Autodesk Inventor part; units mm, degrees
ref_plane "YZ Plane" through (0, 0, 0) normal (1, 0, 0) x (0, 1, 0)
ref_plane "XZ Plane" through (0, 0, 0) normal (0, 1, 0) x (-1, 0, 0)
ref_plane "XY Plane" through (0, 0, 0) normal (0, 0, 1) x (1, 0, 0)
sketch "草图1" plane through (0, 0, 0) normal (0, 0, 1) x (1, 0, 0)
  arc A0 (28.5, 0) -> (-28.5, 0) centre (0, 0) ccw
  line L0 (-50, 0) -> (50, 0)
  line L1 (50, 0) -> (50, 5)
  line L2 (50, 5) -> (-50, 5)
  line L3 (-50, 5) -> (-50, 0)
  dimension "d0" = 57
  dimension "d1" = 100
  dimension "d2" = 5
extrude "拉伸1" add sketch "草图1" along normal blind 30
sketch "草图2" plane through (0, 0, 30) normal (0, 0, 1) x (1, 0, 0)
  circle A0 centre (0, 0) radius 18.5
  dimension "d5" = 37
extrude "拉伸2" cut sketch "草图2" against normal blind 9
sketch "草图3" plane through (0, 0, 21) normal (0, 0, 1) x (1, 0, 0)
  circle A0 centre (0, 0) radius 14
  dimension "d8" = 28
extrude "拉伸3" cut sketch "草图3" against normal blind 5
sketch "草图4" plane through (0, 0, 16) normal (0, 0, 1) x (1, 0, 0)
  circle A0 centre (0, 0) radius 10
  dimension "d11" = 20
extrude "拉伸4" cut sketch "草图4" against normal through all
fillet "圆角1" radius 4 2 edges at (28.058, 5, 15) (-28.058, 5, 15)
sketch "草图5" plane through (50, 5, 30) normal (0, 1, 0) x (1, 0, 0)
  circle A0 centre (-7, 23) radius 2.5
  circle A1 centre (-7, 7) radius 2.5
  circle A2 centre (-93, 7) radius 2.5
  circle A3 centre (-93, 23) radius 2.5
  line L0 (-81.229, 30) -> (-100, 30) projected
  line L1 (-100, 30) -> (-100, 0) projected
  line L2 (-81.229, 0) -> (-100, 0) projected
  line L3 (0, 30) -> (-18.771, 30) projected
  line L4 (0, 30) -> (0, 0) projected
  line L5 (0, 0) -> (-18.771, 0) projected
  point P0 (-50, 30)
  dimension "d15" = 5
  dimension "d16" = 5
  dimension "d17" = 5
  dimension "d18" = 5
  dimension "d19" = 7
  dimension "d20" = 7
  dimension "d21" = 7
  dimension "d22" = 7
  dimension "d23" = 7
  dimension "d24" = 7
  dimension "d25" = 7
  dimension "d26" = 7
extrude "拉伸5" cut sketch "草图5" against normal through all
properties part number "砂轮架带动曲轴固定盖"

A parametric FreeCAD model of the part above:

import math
import FreeCAD as App
import Part
import Sketcher
from FreeCAD import Vector
Q = App.Units.Quantity


def edges_at(feature, points):
    """Names of the edges that pass closest to the given points."""
    edges = feature.Shape.Edges
    near = lambda p: min(range(len(edges)), key=lambda i: edges[i].distToShape(Part.Vertex(*p))[0])
    return sorted({f"Edge{near(p) + 1}" for p in points})

doc = App.newDocument("Part")
body = doc.addObject("PartDesign::Body", "Body")

# Sketch on XY plane
sketch1 = doc.addObject("Sketcher::SketchObject", "Sketch")
body.addObject(sketch1)
sketch1.AttachmentSupport = (doc.XY_Plane, [""])
sketch1.MapMode = "FlatFace"
sketch1.addGeometry(Part.LineSegment(Vector(50, 0, 0), Vector(50, 5, 0)), False)
sketch1.addGeometry(Part.LineSegment(Vector(50, 5, 0), Vector(28, 5, 0)), False)
sketch1.addGeometry(Part.ArcOfCircle(Part.Circle(Vector(0, 0, 0), Vector(0, 0, 1), 28), math.radians(10), math.radians(170)), False)
sketch1.addGeometry(Part.LineSegment(Vector(-28, 5, 0), Vector(-50, 5, 0)), False)
sketch1.addGeometry(Part.LineSegment(Vector(-50, 5, 0), Vector(-50, 0, 0)), False)
sketch1.addGeometry(Part.LineSegment(Vector(-50, 0, 0), Vector(50, 0, 0)), False)
sketch1.addConstraint(Sketcher.Constraint("Coincident", 0, 2, 1, 1))
sketch1.addConstraint(Sketcher.Constraint("Coincident", 1, 2, 2, 1))
sketch1.addConstraint(Sketcher.Constraint("Coincident", 2, 2, 3, 1))
sketch1.addConstraint(Sketcher.Constraint("Coincident", 3, 2, 4, 1))
sketch1.addConstraint(Sketcher.Constraint("Coincident", 4, 2, 5, 1))
sketch1.addConstraint(Sketcher.Constraint("Coincident", 5, 2, 0, 1))
sketch1.addConstraint(Sketcher.Constraint("Vertical", 0))
sketch1.addConstraint(Sketcher.Constraint("Horizontal", 1))
sketch1.addConstraint(Sketcher.Constraint("Horizontal", 3))
sketch1.addConstraint(Sketcher.Constraint("Vertical", 4))
sketch1.addConstraint(Sketcher.Constraint("Horizontal", 5))
sketch1.addConstraint(Sketcher.Constraint("Coincident", 2, 3, -1, 1))
sketch1.addConstraint(Sketcher.Constraint("Symmetric", 4, 2, 5, 2, -1, 1))
sketch1.addConstraint(Sketcher.Constraint("Horizontal", 1, 2, 2, 2))
sketch1.addConstraint(Sketcher.Constraint("Radius", 2, Q("28.5 mm")))
sketch1.addConstraint(Sketcher.Constraint("DistanceX", 5, 1, 5, 2, Q("100 mm")))
sketch1.addConstraint(Sketcher.Constraint("DistanceY", 0, 1, 0, 2, Q("5 mm")))
pad1 = doc.addObject("PartDesign::Pad", "Pad")
body.addObject(pad1)
pad1.Profile = sketch1
pad1.Length = 30

# Sketch on XY plane
sketch2 = doc.addObject("Sketcher::SketchObject", "Sketch001")
body.addObject(sketch2)
sketch2.AttachmentSupport = (doc.XY_Plane, [""])
sketch2.MapMode = "FlatFace"
sketch2.AttachmentOffset = App.Placement(Vector(0, 0, 30), App.Rotation())
sketch2.addGeometry(Part.Circle(Vector(0, 0, 0), Vector(0, 0, 1), 18), False)
sketch2.addConstraint(Sketcher.Constraint("Coincident", 0, 3, -1, 1))
sketch2.addConstraint(Sketcher.Constraint("Diameter", 0, Q("37 mm")))
pocket1 = doc.addObject("PartDesign::Pocket", "Pocket")
body.addObject(pocket1)
pocket1.Profile = sketch2
pocket1.Length = 9

# Sketch on XY plane
sketch3 = doc.addObject("Sketcher::SketchObject", "Sketch002")
body.addObject(sketch3)
sketch3.AttachmentSupport = (doc.XY_Plane, [""])
sketch3.MapMode = "FlatFace"
sketch3.AttachmentOffset = App.Placement(Vector(0, 0, 21), App.Rotation())
sketch3.addGeometry(Part.Circle(Vector(0, 0, 0), Vector(0, 0, 1), 14), False)
sketch3.addConstraint(Sketcher.Constraint("Coincident", 0, 3, -1, 1))
sketch3.addConstraint(Sketcher.Constraint("Diameter", 0, Q("28 mm")))
pocket2 = doc.addObject("PartDesign::Pocket", "Pocket001")
body.addObject(pocket2)
pocket2.Profile = sketch3
pocket2.Length = 5

# Sketch on XY plane
sketch4 = doc.addObject("Sketcher::SketchObject", "Sketch003")
body.addObject(sketch4)
sketch4.AttachmentSupport = (doc.XY_Plane, [""])
sketch4.MapMode = "FlatFace"
sketch4.AttachmentOffset = App.Placement(Vector(0, 0, 16), App.Rotation())
sketch4.addGeometry(Part.Circle(Vector(0, 0, 0), Vector(0, 0, 1), 10), False)
sketch4.addConstraint(Sketcher.Constraint("Coincident", 0, 3, -1, 1))
sketch4.addConstraint(Sketcher.Constraint("Diameter", 0, Q("20 mm")))
pocket3 = doc.addObject("PartDesign::Pocket", "Pocket002")
body.addObject(pocket3)
pocket3.Profile = sketch4
pocket3.Type = "ThroughAll"
doc.recompute()

fillet = doc.addObject("PartDesign::Fillet", "Fillet")
body.addObject(fillet)
fillet.Base = (pocket3, edges_at(pocket3, [(28.058, 5, 15), (-28.058, 5, 15)]))
fillet.Radius = 4

# Sketch on XZ plane
sketch5 = doc.addObject("Sketcher::SketchObject", "Sketch004")
body.addObject(sketch5)
sketch5.AttachmentSupport = (doc.XZ_Plane, [""])
sketch5.MapMode = "FlatFace"
sketch5.AttachmentOffset = App.Placement(Vector(0, 0, -5), App.Rotation())
sketch5.addGeometry(Part.Circle(Vector(43, 7, 0), Vector(0, 0, 1), 2.5), False)
sketch5.addGeometry(Part.Circle(Vector(43, 23, 0), Vector(0, 0, 1), 2.5), False)
sketch5.addGeometry(Part.Circle(Vector(-43, 23, 0), Vector(0, 0, 1), 2.5), False)
sketch5.addGeometry(Part.Circle(Vector(-43, 7, 0), Vector(0, 0, 1), 2.5), False)
sketch5.addConstraint(Sketcher.Constraint("Equal", 0, 1))
sketch5.addConstraint(Sketcher.Constraint("Equal", 1, 2))
sketch5.addConstraint(Sketcher.Constraint("Equal", 2, 3))
sketch5.addConstraint(Sketcher.Constraint("Symmetric", 1, 3, 2, 3, -2))
sketch5.addConstraint(Sketcher.Constraint("Symmetric", 0, 3, 3, 3, -2))
sketch5.addConstraint(Sketcher.Constraint("Vertical", 0, 3, 1, 3))
sketch5.addConstraint(Sketcher.Constraint("Diameter", 0, Q("5 mm")))
sketch5.addConstraint(Sketcher.Constraint("DistanceY", -1, 1, 0, 3, Q("7 mm")))
sketch5.addConstraint(Sketcher.Constraint("DistanceX", -1, 1, 0, 3, Q("43 mm")))
sketch5.addConstraint(Sketcher.Constraint("DistanceY", -1, 1, 1, 3, Q("23 mm")))
pocket4 = doc.addObject("PartDesign::Pocket", "Pocket003")
body.addObject(pocket4)
pocket4.Profile = sketch5
pocket4.Type = "ThroughAll"
pocket4.Reversed = True

doc.recompute()
